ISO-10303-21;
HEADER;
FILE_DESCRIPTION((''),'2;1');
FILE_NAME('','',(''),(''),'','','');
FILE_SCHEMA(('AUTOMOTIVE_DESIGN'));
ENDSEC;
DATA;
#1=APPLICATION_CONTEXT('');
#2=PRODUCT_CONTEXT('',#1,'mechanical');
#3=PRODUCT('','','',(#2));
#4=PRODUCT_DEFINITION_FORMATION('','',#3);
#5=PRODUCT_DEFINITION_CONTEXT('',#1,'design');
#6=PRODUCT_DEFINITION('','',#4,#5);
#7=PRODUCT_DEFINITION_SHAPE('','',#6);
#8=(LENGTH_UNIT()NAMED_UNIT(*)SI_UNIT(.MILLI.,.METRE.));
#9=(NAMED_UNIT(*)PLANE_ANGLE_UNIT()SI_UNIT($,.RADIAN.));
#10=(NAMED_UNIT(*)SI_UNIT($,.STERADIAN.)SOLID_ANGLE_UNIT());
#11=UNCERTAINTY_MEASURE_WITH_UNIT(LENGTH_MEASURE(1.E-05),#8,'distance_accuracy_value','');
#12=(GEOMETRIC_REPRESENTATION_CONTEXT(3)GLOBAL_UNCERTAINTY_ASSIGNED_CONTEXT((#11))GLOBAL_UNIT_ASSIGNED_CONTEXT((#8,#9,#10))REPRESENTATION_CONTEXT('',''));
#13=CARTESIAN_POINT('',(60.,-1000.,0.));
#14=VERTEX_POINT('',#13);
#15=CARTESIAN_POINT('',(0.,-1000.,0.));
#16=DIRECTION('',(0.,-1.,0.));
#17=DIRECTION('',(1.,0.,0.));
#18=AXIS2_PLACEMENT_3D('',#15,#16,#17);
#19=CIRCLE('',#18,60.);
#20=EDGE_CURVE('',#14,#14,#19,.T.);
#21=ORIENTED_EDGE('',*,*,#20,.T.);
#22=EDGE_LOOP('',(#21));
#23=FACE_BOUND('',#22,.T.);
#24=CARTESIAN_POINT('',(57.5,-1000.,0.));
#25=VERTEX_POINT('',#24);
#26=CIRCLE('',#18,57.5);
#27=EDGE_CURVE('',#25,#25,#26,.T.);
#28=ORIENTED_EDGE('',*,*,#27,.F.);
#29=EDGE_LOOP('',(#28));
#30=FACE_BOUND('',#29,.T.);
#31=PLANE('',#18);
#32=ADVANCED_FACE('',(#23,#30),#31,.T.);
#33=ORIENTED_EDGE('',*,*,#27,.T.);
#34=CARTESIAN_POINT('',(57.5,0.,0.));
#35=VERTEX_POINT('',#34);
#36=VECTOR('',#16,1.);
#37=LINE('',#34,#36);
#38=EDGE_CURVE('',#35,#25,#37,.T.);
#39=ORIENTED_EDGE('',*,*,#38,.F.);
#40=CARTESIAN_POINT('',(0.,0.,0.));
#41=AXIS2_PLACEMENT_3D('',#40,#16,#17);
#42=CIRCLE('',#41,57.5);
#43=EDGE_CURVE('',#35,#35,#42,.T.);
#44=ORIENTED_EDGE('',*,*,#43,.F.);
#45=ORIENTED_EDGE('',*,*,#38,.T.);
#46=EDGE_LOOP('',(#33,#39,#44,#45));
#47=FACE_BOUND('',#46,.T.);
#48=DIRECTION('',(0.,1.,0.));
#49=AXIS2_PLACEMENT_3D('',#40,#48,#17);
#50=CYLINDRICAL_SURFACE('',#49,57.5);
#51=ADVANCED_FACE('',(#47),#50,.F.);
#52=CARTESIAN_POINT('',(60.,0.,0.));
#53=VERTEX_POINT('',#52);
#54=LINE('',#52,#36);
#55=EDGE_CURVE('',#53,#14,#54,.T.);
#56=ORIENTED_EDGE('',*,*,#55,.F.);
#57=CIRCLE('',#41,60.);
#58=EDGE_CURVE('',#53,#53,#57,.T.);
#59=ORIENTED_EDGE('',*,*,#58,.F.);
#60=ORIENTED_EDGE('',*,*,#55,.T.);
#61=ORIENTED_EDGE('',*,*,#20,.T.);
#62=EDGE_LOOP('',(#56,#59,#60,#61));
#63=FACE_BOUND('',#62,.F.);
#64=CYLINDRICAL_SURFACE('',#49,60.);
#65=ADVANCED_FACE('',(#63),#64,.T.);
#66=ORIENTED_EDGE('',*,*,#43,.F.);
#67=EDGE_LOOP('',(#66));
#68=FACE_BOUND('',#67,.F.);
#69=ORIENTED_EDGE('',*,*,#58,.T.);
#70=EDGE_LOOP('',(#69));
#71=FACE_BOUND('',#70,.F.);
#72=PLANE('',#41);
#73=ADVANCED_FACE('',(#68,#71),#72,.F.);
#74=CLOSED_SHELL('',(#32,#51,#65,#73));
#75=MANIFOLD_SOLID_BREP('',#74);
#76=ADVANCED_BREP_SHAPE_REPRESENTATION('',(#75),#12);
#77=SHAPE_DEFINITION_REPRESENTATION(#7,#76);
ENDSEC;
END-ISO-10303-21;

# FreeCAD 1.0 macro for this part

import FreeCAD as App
import Part
import Sketcher

doc = App.newDocument("Part")
body = doc.addObject("PartDesign::Body", "Body")

sketch1 = body.newObject("Sketcher::SketchObject", "Sketch")
sketch1.AttachmentSupport = (doc.getObject("XZ_Plane"), [""])
sketch1.MapMode = "FlatFace"
sketch1.addGeometry(Part.Circle(App.Vector(0, 0, 0), App.Vector(0, 0, 1), 60), False)
sketch1.addGeometry(Part.Circle(App.Vector(0, 0, 0), App.Vector(0, 0, 1), 58), False)
sketch1.addConstraint(Sketcher.Constraint("Coincident", 0, 3, -1, 1))
sketch1.addConstraint(Sketcher.Constraint("Coincident", 1, 3, -1, 1))
sketch1.addConstraint(Sketcher.Constraint("Diameter", 0, 120.0))
sketch1.addConstraint(Sketcher.Constraint("Diameter", 1, 115.0))
pad1 = body.newObject("PartDesign::Pad", "Pad")
pad1.Profile = sketch1
pad1.Length = 1000

doc.recompute()
